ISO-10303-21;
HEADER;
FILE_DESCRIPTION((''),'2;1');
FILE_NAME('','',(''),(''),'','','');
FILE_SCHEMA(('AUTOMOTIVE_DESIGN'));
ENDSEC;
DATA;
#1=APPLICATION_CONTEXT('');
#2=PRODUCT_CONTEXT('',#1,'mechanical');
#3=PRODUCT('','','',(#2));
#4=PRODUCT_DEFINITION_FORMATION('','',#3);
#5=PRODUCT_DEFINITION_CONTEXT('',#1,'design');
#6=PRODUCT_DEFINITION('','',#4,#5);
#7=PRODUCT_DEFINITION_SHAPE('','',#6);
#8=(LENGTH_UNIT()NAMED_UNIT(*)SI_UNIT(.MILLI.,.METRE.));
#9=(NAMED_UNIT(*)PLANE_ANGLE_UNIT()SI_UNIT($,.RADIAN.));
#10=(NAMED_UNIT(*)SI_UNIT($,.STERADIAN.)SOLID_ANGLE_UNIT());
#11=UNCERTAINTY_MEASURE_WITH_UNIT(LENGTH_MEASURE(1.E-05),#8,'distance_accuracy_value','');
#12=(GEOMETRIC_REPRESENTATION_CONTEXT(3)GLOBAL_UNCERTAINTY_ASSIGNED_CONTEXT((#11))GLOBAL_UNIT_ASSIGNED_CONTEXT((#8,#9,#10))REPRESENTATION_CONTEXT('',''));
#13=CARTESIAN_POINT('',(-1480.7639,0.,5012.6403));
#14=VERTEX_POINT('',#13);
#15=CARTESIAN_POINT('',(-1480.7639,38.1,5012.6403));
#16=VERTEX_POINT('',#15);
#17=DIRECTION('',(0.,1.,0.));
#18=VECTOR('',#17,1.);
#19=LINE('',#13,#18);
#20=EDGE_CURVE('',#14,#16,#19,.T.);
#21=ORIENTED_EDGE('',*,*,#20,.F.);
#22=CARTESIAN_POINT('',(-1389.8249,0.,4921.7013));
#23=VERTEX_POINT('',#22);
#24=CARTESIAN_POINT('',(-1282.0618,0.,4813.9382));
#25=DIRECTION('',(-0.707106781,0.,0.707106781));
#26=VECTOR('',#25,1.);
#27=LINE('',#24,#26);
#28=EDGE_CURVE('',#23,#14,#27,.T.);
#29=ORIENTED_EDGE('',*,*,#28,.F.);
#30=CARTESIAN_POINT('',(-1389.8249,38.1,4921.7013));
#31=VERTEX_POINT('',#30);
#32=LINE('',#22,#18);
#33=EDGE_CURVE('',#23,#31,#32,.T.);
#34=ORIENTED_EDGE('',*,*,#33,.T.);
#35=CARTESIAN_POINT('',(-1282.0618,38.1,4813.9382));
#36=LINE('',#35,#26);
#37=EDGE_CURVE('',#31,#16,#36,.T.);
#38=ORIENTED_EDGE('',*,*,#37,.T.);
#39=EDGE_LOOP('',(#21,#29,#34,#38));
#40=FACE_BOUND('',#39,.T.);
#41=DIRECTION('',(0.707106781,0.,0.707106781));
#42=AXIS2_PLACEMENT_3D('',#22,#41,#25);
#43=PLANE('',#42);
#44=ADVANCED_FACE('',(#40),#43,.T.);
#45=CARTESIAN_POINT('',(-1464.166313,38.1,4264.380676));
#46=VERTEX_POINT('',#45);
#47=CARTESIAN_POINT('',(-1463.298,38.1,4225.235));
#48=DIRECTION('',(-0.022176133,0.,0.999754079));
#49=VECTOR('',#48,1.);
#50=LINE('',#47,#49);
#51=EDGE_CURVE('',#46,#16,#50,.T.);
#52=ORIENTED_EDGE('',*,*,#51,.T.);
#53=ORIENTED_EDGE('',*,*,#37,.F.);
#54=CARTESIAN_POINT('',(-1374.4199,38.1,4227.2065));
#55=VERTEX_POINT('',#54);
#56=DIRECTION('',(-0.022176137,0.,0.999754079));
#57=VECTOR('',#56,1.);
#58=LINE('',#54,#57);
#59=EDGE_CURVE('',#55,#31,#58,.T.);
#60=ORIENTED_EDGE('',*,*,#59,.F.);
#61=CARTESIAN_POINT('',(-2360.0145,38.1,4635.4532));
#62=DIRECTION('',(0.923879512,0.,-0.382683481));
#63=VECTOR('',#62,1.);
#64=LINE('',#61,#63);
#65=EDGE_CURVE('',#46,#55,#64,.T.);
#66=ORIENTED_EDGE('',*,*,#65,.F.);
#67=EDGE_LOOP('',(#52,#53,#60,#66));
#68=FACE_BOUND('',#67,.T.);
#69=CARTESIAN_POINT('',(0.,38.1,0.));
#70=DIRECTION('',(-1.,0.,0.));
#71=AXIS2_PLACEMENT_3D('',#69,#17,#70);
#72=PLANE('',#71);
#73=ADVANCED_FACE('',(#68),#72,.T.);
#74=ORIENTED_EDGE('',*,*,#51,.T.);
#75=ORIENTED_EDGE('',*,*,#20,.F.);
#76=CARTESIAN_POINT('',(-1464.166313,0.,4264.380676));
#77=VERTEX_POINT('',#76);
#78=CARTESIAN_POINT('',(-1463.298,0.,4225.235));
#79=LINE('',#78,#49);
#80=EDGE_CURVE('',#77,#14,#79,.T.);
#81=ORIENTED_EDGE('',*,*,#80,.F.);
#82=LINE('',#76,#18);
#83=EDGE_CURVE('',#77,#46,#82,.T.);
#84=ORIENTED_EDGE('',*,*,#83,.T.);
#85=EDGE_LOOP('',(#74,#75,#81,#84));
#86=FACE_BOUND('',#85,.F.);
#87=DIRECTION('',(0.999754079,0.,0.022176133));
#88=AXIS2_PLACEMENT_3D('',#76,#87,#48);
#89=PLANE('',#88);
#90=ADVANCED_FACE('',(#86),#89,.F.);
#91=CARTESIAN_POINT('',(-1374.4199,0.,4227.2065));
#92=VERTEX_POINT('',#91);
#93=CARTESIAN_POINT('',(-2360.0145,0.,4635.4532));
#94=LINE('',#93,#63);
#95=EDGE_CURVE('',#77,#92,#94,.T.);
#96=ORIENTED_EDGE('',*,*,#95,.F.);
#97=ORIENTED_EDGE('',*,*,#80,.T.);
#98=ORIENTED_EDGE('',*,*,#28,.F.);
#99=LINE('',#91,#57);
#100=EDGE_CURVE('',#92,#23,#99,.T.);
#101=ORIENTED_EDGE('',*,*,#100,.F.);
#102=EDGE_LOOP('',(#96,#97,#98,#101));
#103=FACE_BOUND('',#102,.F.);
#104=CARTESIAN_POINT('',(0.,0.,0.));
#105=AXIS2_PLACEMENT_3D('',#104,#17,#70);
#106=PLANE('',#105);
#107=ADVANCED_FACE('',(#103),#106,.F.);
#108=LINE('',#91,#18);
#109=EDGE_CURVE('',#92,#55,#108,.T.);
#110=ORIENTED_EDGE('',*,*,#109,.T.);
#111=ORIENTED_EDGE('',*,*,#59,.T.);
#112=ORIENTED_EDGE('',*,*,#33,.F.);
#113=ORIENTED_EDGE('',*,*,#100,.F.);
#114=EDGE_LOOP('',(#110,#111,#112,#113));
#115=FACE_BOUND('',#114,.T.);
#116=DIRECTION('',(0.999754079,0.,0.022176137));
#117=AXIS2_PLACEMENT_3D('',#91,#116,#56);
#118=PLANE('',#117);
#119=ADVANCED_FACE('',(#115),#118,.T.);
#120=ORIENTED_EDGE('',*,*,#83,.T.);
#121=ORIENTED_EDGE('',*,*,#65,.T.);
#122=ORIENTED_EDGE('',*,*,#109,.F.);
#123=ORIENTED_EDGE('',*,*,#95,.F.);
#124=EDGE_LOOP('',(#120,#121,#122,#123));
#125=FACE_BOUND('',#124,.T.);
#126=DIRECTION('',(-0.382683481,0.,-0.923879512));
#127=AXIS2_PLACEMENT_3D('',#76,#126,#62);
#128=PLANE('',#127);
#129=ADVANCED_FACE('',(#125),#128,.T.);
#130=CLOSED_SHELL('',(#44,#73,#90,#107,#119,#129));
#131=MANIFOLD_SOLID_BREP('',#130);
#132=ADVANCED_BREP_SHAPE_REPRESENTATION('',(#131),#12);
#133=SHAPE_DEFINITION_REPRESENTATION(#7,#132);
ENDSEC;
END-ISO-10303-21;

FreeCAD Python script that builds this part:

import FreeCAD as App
import Part
import Sketcher
from FreeCAD import Vector
Q = App.Units.Quantity

doc = App.newDocument("Part")
params = doc.addObject("Spreadsheet::Sheet", "Params")
for row, (alias, value) in enumerate([
    ("pad1_length", "1.5 in"),
], start=1):
    params.set(f"A{row}", alias)
    params.set(f"B{row}", "=" + value)
    params.setAlias(f"B{row}", alias)

body = doc.addObject("PartDesign::Body", "Body")

# Sketch on XZ plane
sketch1 = body.newObject("Sketcher::SketchObject", "Sketch")
sketch1.AttachmentSupport = (doc.getObject("XZ_Plane"), [""])
sketch1.MapMode = "FlatFace"
sketch1.addGeometry([
    Part.LineSegment(Vector(-1389.8249, 4921.7013, 0), Vector(-1374.4199, 4227.2065, 0)),
    Part.LineSegment(Vector(-1374.419904, 4227.20649, 0), Vector(-1464.166313, 4264.380676, 0)),
    Part.LineSegment(Vector(-1464.166313, 4264.380676, 0), Vector(-1480.7639, 5012.6403, 0)),
    Part.LineSegment(Vector(-1480.7639, 5012.6403, 0), Vector(-1389.8249, 4921.7013, 0)),
], False)
sketch1.addConstraint([
    Sketcher.Constraint("Coincident", 0, 2, 1, 1),
    Sketcher.Constraint("Coincident", 1, 2, 2, 1),
    Sketcher.Constraint("Coincident", 2, 2, 3, 1),
    Sketcher.Constraint("Coincident", 3, 2, 0, 1),
    Sketcher.Constraint("DistanceY", -1, 1, 1, 2, Q("167.889 in")),
    Sketcher.Constraint("DistanceX", 2, 2, -1, 1, Q("58.2978 in")),
    Sketcher.Constraint("DistanceY", 0, 2, 2, 2, Q("30.9226 in")),
    Sketcher.Constraint("DistanceX", 3, 2, 0, 2, Q("0.6065 in")),
    Sketcher.Constraint("Distance", 0, Q("694.6656 mm")),
    Sketcher.Constraint("Distance", 1, Q("97.1408 mm")),
    Sketcher.Constraint("Distance", 2, Q("748.4437 mm")),
    Sketcher.Constraint("Distance", 3, Q("128.6072 mm")),
])
pad1 = body.newObject("PartDesign::Pad", "Pad")
pad1.Profile = sketch1
pad1.setExpression("Length", "Params.pad1_length")
pad1.Reversed = True

doc.recompute()
